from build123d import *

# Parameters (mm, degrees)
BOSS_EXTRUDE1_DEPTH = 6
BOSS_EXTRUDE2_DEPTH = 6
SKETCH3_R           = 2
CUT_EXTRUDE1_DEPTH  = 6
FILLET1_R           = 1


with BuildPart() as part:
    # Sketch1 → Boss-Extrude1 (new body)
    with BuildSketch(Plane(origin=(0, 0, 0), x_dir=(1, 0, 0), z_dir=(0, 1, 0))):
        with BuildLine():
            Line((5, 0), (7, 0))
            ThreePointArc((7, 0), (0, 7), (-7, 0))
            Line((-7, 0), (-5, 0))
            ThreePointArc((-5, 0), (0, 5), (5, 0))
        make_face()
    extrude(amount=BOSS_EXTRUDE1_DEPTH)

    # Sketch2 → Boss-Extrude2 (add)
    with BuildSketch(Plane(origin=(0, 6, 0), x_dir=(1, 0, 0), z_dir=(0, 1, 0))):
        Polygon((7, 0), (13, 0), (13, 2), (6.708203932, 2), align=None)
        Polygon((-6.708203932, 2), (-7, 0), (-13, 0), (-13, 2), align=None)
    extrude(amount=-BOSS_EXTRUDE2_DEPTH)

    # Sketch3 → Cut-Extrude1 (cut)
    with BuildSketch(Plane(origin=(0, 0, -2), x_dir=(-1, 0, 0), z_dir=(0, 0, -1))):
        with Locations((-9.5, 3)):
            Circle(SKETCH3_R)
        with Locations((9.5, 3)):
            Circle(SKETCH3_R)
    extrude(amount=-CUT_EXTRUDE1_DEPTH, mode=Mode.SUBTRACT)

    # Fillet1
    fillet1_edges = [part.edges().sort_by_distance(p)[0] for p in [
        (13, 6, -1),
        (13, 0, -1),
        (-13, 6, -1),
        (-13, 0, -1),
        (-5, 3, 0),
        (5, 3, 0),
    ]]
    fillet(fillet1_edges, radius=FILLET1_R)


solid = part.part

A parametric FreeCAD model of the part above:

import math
import FreeCAD as App
import Part
import Sketcher
from FreeCAD import Vector


def edges_at(feature, points):
    """Names of the edges that pass closest to the given points."""
    edges = feature.Shape.Edges
    near = lambda p: min(range(len(edges)), key=lambda i: edges[i].distToShape(Part.Vertex(*p))[0])
    return sorted({f"Edge{near(p) + 1}" for p in points})


def add_polygon(sketch, points):
    """Adds a closed chain of lines whose ends are joined by coincident constraints."""
    first, n = sketch.GeometryCount, len(points)
    for a, b in zip(points, points[1:] + points[:1]):
        sketch.addGeometry(Part.LineSegment(App.Vector(*a, 0), App.Vector(*b, 0)), False)
    for i in range(n):
        sketch.addConstraint(Sketcher.Constraint("Coincident", first + i, 2, first + (i + 1) % n, 1))

doc = App.newDocument("Part")
params = doc.addObject("Spreadsheet::Sheet", "Params")
for row, (alias, value) in enumerate([
    ("sketch1_radius", "7 mm"),
    ("sketch1_radius2", "5 mm"),
    ("pad1_length", "6 mm"),
    ("sketch2_width", "6 mm"),
    ("sketch2_height", "2 mm"),
    ("pad2_length", "6 mm"),
    ("sketch3_diameter", "4 mm"),
    ("pocket1_length", "6 mm"),
    ("fillet_radius", "1 mm"),
], start=1):
    params.set(f"A{row}", alias)
    params.set(f"B{row}", "=" + value)
    params.setAlias(f"B{row}", alias)

body = doc.addObject("PartDesign::Body", "Body")

sketch1 = body.newObject("Sketcher::SketchObject", "Sketch")
sketch1.AttachmentSupport = (doc.getObject("XZ_Plane"), [""])
sketch1.MapMode = "FlatFace"
sketch1.addGeometry([
    Part.LineSegment(Vector(5, 0, 0), Vector(7, 0, 0)),
    Part.ArcOfCircle(Part.Circle(Vector(0, 0, 0), Vector(0, 0, 1), 7), math.radians(180), math.radians(360)),
    Part.LineSegment(Vector(-7, 0, 0), Vector(-5, 0, 0)),
    Part.ArcOfCircle(Part.Circle(Vector(0, 0, 0), Vector(0, 0, 1), 5), math.radians(180), math.radians(360)),
], False)
sketch1.addConstraint([
    Sketcher.Constraint("Coincident", 0, 2, 1, 2),
    Sketcher.Constraint("Coincident", 1, 1, 2, 1),
    Sketcher.Constraint("Coincident", 2, 2, 3, 1),
    Sketcher.Constraint("Coincident", 3, 2, 0, 1),
    Sketcher.Constraint("Horizontal", 0),
    Sketcher.Constraint("Horizontal", 2),
    Sketcher.Constraint("Coincident", 1, 3, -1, 1),
    Sketcher.Constraint("Coincident", 3, 3, -1, 1),
    Sketcher.Constraint("PointOnObject", 0, 2, -1),
    Sketcher.Constraint("PointOnObject", 1, 1, -1),
    Sketcher.Constraint("Radius", 1, 7.0),
    Sketcher.Constraint("Radius", 3, 5.0),
])
sketch1.setExpression("Constraints[10]", "Params.sketch1_radius")
sketch1.setExpression("Constraints[11]", "Params.sketch1_radius2")
pad1 = body.newObject("PartDesign::Pad", "Pad")
pad1.Profile = sketch1
pad1.setExpression("Length", "Params.pad1_length")
pad1.Reversed = True

sketch2 = body.newObject("Sketcher::SketchObject", "Sketch001")
sketch2.AttachmentSupport = (doc.getObject("XZ_Plane"), [""])
sketch2.MapMode = "FlatFace"
sketch2.AttachmentOffset = App.Placement(Vector(0, 0, -6), App.Rotation())
add_polygon(sketch2, [(7, 0), (13, 0), (13, -2), (6.708204, -2)])
add_polygon(sketch2, [(-7, 0), (-6.708204, -2), (-13, -2), (-13, 0)])
sketch2.addConstraint([
    Sketcher.Constraint("Horizontal", 0),
    Sketcher.Constraint("Vertical", 1),
    Sketcher.Constraint("Horizontal", 2),
    Sketcher.Constraint("Horizontal", 5),
    Sketcher.Constraint("Vertical", 6),
    Sketcher.Constraint("Horizontal", 7),
    Sketcher.Constraint("Symmetric", 0, 2, 6, 2, -1, 1),
    Sketcher.Constraint("Symmetric", 2, 2, 4, 2, -2),
    Sketcher.Constraint("Symmetric", 3, 2, 7, 2, -2),
    Sketcher.Constraint("DistanceX", 0, 1, 0, 2, 6.0),
    Sketcher.Constraint("DistanceY", 1, 2, 1, 1, 2.0),
    Sketcher.Constraint("DistanceX", -1, 1, 0, 2, 13.0),
    Sketcher.Constraint("DistanceX", 2, 2, 2, 1, 6.291796),
])
sketch2.setExpression("Constraints[17]", "Params.sketch2_width")
sketch2.setExpression("Constraints[18]", "Params.sketch2_height")
pad2 = body.newObject("PartDesign::Pad", "Pad001")
pad2.Profile = sketch2
pad2.setExpression("Length", "Params.pad2_length")

sketch3 = body.newObject("Sketcher::SketchObject", "Sketch002")
sketch3.AttachmentSupport = (doc.getObject("XY_Plane"), [""])
sketch3.MapMode = "FlatFace"
sketch3.AttachmentOffset = App.Placement(Vector(0, 0, -2), App.Rotation())
sketch3.addGeometry([
    Part.Circle(Vector(9.5, 3, 0), Vector(0, 0, 1), 2),
    Part.Circle(Vector(-9.5, 3, 0), Vector(0, 0, 1), 2),
], False)
sketch3.addConstraint([
    Sketcher.Constraint("Equal", 0, 1),
    Sketcher.Constraint("Symmetric", 0, 3, 1, 3, -2),
    Sketcher.Constraint("Diameter", 0, 4.0),
    Sketcher.Constraint("DistanceY", -1, 1, 0, 3, 3.0),
    Sketcher.Constraint("DistanceX", 1, 3, 0, 3, 19.0),
])
sketch3.setExpression("Constraints[2]", "Params.sketch3_diameter")
pocket1 = body.newObject("PartDesign::Pocket", "Pocket")
pocket1.Profile = sketch3
pocket1.setExpression("Length", "Params.pocket1_length")
pocket1.Reversed = True
doc.recompute()

fillet = body.newObject("PartDesign::Fillet", "Fillet")
fillet.Base = (pocket1, edges_at(pocket1, [
    (13, 6, -1),
    (13, 0, -1),
    (-13, 6, -1),
    (-13, 0, -1),
    (-5, 3, 0),
    (5, 3, 0),
]))
fillet.setExpression("Radius", "Params.fillet_radius")

doc.recompute()
